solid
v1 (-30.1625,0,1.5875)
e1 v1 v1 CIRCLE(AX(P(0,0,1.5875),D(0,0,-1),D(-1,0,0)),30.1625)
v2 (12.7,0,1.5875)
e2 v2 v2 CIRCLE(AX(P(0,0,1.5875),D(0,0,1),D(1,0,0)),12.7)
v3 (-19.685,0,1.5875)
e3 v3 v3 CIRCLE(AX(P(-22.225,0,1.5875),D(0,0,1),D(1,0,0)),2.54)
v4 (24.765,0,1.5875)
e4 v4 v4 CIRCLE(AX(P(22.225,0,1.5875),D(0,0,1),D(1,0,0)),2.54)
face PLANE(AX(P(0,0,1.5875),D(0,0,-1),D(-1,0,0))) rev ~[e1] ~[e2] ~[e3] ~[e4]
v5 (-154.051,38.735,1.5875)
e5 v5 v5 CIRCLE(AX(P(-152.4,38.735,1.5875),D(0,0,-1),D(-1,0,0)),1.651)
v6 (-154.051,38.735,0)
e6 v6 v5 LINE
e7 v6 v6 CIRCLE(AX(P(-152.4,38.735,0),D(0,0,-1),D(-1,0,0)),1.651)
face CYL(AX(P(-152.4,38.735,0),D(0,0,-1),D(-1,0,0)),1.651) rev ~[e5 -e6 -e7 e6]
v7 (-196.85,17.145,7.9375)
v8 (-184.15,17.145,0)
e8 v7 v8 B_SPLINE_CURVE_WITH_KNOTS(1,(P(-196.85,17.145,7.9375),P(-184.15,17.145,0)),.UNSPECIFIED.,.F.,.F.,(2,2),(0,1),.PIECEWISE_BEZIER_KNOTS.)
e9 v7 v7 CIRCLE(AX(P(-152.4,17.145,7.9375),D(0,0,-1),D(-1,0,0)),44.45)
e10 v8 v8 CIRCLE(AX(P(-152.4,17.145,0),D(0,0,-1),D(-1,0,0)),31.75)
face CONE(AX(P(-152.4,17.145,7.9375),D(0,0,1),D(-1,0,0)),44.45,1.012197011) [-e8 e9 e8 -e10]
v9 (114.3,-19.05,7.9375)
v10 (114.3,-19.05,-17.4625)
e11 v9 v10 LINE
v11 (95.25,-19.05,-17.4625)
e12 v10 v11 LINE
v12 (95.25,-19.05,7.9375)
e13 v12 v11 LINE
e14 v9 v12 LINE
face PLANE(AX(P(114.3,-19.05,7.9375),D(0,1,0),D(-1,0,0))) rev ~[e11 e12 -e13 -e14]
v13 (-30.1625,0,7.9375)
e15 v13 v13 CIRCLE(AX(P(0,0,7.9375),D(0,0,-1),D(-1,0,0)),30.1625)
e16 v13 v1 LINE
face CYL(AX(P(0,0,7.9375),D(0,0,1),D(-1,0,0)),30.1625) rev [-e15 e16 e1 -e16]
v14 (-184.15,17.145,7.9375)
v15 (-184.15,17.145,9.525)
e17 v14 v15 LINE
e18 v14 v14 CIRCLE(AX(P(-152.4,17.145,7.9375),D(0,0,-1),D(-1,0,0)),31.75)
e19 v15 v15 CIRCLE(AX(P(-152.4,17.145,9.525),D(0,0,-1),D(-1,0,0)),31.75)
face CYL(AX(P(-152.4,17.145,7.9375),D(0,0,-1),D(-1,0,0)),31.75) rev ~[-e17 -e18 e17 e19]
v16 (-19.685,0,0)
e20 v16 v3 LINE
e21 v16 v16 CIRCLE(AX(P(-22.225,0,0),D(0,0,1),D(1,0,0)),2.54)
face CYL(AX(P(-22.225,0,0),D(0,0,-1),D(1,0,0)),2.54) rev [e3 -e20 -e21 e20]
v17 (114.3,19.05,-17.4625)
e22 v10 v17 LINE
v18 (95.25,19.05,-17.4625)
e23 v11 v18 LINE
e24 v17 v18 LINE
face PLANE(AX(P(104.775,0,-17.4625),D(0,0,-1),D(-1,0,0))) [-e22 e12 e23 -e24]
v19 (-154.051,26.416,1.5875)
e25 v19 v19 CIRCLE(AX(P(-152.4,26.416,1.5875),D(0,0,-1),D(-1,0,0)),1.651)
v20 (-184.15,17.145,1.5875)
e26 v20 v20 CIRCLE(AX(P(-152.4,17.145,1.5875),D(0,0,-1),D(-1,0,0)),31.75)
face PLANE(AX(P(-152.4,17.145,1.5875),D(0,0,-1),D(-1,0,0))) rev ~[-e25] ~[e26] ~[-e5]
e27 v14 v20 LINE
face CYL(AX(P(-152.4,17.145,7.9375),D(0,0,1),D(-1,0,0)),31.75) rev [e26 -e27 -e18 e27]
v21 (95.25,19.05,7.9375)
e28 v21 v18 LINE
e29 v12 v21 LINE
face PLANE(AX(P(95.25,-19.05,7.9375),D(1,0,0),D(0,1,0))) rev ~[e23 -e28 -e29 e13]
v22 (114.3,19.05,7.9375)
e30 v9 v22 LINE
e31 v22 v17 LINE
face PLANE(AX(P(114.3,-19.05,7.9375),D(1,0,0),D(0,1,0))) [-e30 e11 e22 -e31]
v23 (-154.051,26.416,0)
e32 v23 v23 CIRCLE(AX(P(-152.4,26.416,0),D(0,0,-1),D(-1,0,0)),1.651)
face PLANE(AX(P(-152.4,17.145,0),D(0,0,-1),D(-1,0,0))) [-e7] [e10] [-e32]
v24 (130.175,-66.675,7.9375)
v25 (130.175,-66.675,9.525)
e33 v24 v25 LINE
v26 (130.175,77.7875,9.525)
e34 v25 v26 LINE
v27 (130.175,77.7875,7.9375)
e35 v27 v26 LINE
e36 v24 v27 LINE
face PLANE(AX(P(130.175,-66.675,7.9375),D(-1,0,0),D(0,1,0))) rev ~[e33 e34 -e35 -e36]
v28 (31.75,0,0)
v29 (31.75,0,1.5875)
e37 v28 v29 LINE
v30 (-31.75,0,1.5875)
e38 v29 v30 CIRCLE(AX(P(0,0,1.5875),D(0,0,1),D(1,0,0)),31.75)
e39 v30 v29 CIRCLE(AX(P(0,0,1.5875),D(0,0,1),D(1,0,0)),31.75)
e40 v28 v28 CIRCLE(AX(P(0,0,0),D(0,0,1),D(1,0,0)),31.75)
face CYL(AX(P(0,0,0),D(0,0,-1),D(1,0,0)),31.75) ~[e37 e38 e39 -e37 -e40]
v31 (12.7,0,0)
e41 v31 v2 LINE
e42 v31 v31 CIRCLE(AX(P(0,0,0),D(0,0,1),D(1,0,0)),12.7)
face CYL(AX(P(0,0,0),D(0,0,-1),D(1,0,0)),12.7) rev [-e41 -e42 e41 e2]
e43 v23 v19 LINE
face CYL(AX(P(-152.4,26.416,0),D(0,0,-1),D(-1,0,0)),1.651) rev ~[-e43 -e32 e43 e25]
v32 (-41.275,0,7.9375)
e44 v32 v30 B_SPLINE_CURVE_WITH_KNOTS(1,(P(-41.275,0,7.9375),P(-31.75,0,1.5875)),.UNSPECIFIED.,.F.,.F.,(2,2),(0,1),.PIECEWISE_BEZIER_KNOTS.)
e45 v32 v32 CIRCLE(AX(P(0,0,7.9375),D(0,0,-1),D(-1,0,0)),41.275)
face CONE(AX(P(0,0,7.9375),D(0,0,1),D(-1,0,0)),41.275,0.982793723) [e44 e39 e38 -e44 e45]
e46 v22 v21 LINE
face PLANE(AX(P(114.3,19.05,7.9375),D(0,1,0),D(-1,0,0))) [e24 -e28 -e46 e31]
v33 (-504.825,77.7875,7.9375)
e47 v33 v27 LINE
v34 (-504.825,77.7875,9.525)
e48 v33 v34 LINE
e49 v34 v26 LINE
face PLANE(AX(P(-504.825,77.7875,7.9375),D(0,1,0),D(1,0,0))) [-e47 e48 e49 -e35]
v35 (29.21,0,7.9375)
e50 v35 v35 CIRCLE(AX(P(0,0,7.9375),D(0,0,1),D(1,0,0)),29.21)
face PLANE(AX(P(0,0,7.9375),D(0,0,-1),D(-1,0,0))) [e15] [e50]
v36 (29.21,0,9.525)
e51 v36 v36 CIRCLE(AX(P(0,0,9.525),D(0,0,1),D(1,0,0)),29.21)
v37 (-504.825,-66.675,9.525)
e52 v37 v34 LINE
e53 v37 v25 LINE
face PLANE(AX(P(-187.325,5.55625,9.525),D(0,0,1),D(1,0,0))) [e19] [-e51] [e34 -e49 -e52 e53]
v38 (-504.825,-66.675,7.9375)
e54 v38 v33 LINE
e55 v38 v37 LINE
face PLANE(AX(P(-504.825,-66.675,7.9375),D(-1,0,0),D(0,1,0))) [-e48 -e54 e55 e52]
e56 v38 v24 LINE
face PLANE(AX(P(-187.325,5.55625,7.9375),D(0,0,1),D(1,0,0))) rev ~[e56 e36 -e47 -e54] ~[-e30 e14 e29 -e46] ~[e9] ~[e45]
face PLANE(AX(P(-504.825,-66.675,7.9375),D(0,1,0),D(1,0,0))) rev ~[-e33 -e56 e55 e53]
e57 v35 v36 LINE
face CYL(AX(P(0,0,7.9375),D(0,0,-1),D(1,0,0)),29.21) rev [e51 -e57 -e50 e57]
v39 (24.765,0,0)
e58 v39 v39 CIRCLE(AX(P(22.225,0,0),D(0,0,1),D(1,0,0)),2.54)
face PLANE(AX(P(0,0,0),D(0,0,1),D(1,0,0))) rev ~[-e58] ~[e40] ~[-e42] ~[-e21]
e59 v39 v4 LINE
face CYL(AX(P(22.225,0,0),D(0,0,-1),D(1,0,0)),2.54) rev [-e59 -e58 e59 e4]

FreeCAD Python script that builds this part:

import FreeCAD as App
import Part
import Sketcher
from FreeCAD import Vector
Q = App.Units.Quantity

doc = App.newDocument("Part")
body = doc.addObject("PartDesign::Body", "Body")

# Sketch on XY plane
sketch1 = doc.addObject("Sketcher::SketchObject", "Sketch")
body.addObject(sketch1)
sketch1.AttachmentSupport = (doc.XY_Plane, [""])
sketch1.MapMode = "FlatFace"
sketch1.addGeometry([
    Part.Circle(Vector(0, 0, 0), Vector(0, 0, 1), 31.75),
    Part.Circle(Vector(-22.225, 0, 0), Vector(0, 0, 1), 2.54),
    Part.Circle(Vector(0, 0, 0), Vector(0, 0, 1), 12.7),
    Part.Circle(Vector(22.225, 0, 0), Vector(0, 0, 1), 2.54),
], False)
sketch1.addConstraint([
    Sketcher.Constraint("Coincident", 0, 3, -1, 1),
    Sketcher.Constraint("Coincident", 2, 3, -1, 1),
    Sketcher.Constraint("Equal", 1, 3),
    Sketcher.Constraint("Symmetric", 1, 3, 3, 3, -1, 1),
    Sketcher.Constraint("PointOnObject", 1, 3, -1),
    Sketcher.Constraint("Diameter", 2, Q("1 in")),
    Sketcher.Constraint("Diameter", 0, Q("2.5 in")),
    Sketcher.Constraint("Diameter", 1, Q("0.2 in")),
    Sketcher.Constraint("DistanceX", 1, 3, 3, 3, Q("1.75 in")),
])
pad1 = doc.addObject("PartDesign::Pad", "Pad")
body.addObject(pad1)
pad1.Profile = sketch1
pad1.Length = Q("0.0625 in")
body2 = doc.addObject("PartDesign::Body", "Body001")

# Sketch on XY plane
sketch2 = doc.addObject("Sketcher::SketchObject", "Sketch001")
body2.addObject(sketch2)
sketch2.AttachmentSupport = (doc.getObject("XY_Plane001"), [""])
sketch2.MapMode = "FlatFace"
sketch2.AttachmentOffset = App.Placement(Vector(0, 0, 0.3125 * 25.4), App.Rotation())
sketch2.addGeometry([
    Part.LineSegment(Vector(-504.825, 77.7875, 0), Vector(-504.825, -66.675, 0)),  # 0
    Part.LineSegment(Vector(-504.825, -66.675, 0), Vector(130.175, -66.675, 0)),  # 1
    Part.LineSegment(Vector(130.175, -66.675, 0), Vector(130.175, 77.7875, 0)),  # 2
    Part.LineSegment(Vector(130.175, 77.7875, 0), Vector(-504.825, 77.7875, 0)),  # 3
    Part.Circle(Vector(0, 0, 0), Vector(0, 0, 1), 29.21),  # 4
], False)
sketch2.addConstraint([
    Sketcher.Constraint("Coincident", 0, 2, 1, 1),
    Sketcher.Constraint("Coincident", 1, 2, 2, 1),
    Sketcher.Constraint("Coincident", 2, 2, 3, 1),
    Sketcher.Constraint("Coincident", 3, 2, 0, 1),
    Sketcher.Constraint("Vertical", 0),
    Sketcher.Constraint("Horizontal", 1),
    Sketcher.Constraint("Vertical", 2),
    Sketcher.Constraint("Horizontal", 3),
    Sketcher.Constraint("Coincident", 4, 3, -1, 1),
    Sketcher.Constraint("Diameter", 4, Q("2.3 in")),
    Sketcher.Constraint("DistanceX", 1, 1, 1, 2, Q("25 in")),
    Sketcher.Constraint("DistanceY", 0, 2, 0, 1, Q("5.6875 in")),
    Sketcher.Constraint("DistanceX", 0, 2, -1, 1, Q("19.875 in")),
    Sketcher.Constraint("DistanceY", 0, 2, -1, 1, Q("2.625 in")),
])
pad2 = doc.addObject("PartDesign::Pad", "Pad001")
body2.addObject(pad2)
pad2.Profile = sketch2
pad2.Length = Q("0.0625 in")
body.AllowCompound = True
doc.recompute()

boolean = doc.addObject("PartDesign::Boolean", "Boolean")
body.addObject(boolean)
boolean.Type = "Fuse"
boolean.addObjects([body2])

# Sketch on XY plane
sketch3 = doc.addObject("Sketcher::SketchObject", "Sketch002")
body.addObject(sketch3)
sketch3.AttachmentSupport = (doc.XY_Plane, [""])
sketch3.MapMode = "FlatFace"
sketch3.AttachmentOffset = App.Placement(Vector(0, 0, 0.3125 * 25.4), App.Rotation())
sketch3.addGeometry(Part.Circle(Vector(0, 0, 0), Vector(0, 0, 1), 41.275), False)
sketch3.addConstraint([
    Sketcher.Constraint("Coincident", 0, 3, -1, 1),
    Sketcher.Constraint("Diameter", 0, Q("3.25 in")),
])

# Sketch on XY plane
sketch4 = doc.addObject("Sketcher::SketchObject", "Sketch003")
body.addObject(sketch4)
sketch4.AttachmentSupport = (doc.XY_Plane, [""])
sketch4.MapMode = "FlatFace"
sketch4.AttachmentOffset = App.Placement(Vector(0, 0, 0.0625 * 25.4), App.Rotation())
sketch4.addGeometry(Part.Circle(Vector(0, 0, 0), Vector(0, 0, 1), 31.75), False)
sketch4.addConstraint([
    Sketcher.Constraint("Coincident", 0, 3, -1, 1),
    Sketcher.Constraint("Diameter", 0, Q("2.5 in")),
])

additiveloft = doc.addObject("PartDesign::AdditiveLoft", "AdditiveLoft")
body.addObject(additiveloft)
additiveloft.Profile = sketch3
additiveloft.Sections = [sketch4]

# Sketch on XY plane
sketch5 = doc.addObject("Sketcher::SketchObject", "Sketch004")
body.addObject(sketch5)
sketch5.AttachmentSupport = (doc.XY_Plane, [""])
sketch5.MapMode = "FlatFace"
sketch5.AttachmentOffset = App.Placement(Vector(0, 0, 0.3125 * 25.4), App.Rotation())
sketch5.addGeometry(Part.Circle(Vector(0, 0, 0), Vector(0, 0, 1), 30.1625), False)
sketch5.addConstraint([
    Sketcher.Constraint("Coincident", 0, 3, -1, 1),
    Sketcher.Constraint("Diameter", 0, Q("2.375 in")),
])
pocket1 = doc.addObject("PartDesign::Pocket", "Pocket")
body.addObject(pocket1)
pocket1.Profile = sketch5
pocket1.Length = Q("0.25 in")

# Sketch on XY plane
sketch6 = doc.addObject("Sketcher::SketchObject", "Sketch005")
body.addObject(sketch6)
sketch6.AttachmentSupport = (doc.XY_Plane, [""])
sketch6.MapMode = "FlatFace"
sketch6.AttachmentOffset = App.Placement(Vector(0, 0, 0.3125 * 25.4), App.Rotation())
sketch6.addGeometry([
    Part.LineSegment(Vector(114.3, 19.05, 0), Vector(114.3, -19.05, 0)),
    Part.LineSegment(Vector(114.3, -19.05, 0), Vector(95.25, -19.05, 0)),
    Part.LineSegment(Vector(95.25, -19.05, 0), Vector(95.25, 19.05, 0)),
    Part.LineSegment(Vector(95.25, 19.05, 0), Vector(114.3, 19.05, 0)),
], False)
sketch6.addConstraint([
    Sketcher.Constraint("Coincident", 0, 2, 1, 1),
    Sketcher.Constraint("Coincident", 1, 2, 2, 1),
    Sketcher.Constraint("Coincident", 2, 2, 3, 1),
    Sketcher.Constraint("Coincident", 3, 2, 0, 1),
    Sketcher.Constraint("Vertical", 0),
    Sketcher.Constraint("Horizontal", 1),
    Sketcher.Constraint("Vertical", 2),
    Sketcher.Constraint("Horizontal", 3),
    Sketcher.Constraint("DistanceY", 0, 2, 0, 1, Q("1.5 in")),
    Sketcher.Constraint("DistanceX", 1, 2, 1, 1, Q("0.75 in")),
    Sketcher.Constraint("DistanceX", -1, 1, 0, 2, Q("4.5 in")),
    Sketcher.Constraint("DistanceY", 0, 2, -1, 1, Q("0.75 in")),
])
pad3 = doc.addObject("PartDesign::Pad", "Pad002")
body.addObject(pad3)
pad3.Profile = sketch6
pad3.Length = Q("1 in")
pad3.Reversed = True

# Sketch on XY plane
sketch7 = doc.addObject("Sketcher::SketchObject", "Sketch006")
body.addObject(sketch7)
sketch7.AttachmentSupport = (doc.XY_Plane, [""])
sketch7.MapMode = "FlatFace"
sketch7.AttachmentOffset = App.Placement(Vector(0, 0, 0.3125 * 25.4), App.Rotation())
sketch7.addGeometry(Part.Circle(Vector(-152.4, 17.145, 0), Vector(0, 0, 1), 44.45), False)
sketch7.addConstraint([
    Sketcher.Constraint("Diameter", 0, Q("3.5 in")),
    Sketcher.Constraint("DistanceX", 0, 3, -1, 1, Q("6 in")),
    Sketcher.Constraint("DistanceY", -1, 1, 0, 3, Q("0.675 in")),
])

# Sketch on XY plane
sketch8 = doc.addObject("Sketcher::SketchObject", "Sketch007")
body.addObject(sketch8)
sketch8.AttachmentSupport = (doc.XY_Plane, [""])
sketch8.MapMode = "FlatFace"
sketch8.addGeometry(Part.Circle(Vector(-152.4, 17.145, 0), Vector(0, 0, 1), 31.75), False)
sketch8.addConstraint([
    Sketcher.Constraint("Diameter", 0, Q("2.5 in")),
    Sketcher.Constraint("DistanceX", 0, 3, -1, 1, Q("6 in")),
    Sketcher.Constraint("DistanceY", -1, 1, 0, 3, Q("0.675 in")),
])

additiveloft2 = doc.addObject("PartDesign::AdditiveLoft", "AdditiveLoft001")
body.addObject(additiveloft2)
additiveloft2.Profile = sketch7
additiveloft2.Sections = [sketch8]

# Sketch on XY plane
sketch9 = doc.addObject("Sketcher::SketchObject", "Sketch008")
body.addObject(sketch9)
sketch9.AttachmentSupport = (doc.XY_Plane, [""])
sketch9.MapMode = "FlatFace"
sketch9.AttachmentOffset = App.Placement(Vector(0, 0, 0.3125 * 25.4), App.Rotation())
sketch9.addGeometry(Part.Circle(Vector(-152.4, 17.145, 0), Vector(0, 0, 1), 31.75), False)
sketch9.addConstraint([
    Sketcher.Constraint("Diameter", 0, Q("2.5 in")),
    Sketcher.Constraint("DistanceX", 0, 3, -1, 1, Q("6 in")),
    Sketcher.Constraint("DistanceY", -1, 1, 0, 3, Q("0.675 in")),
])
pocket2 = doc.addObject("PartDesign::Pocket", "Pocket001")
body.addObject(pocket2)
pocket2.Profile = sketch9
pocket2.Type = "TwoLengths"
pocket2.Length = Q("0.25 in")
pocket2.Length2 = 2.5875

# Sketch on XY plane
sketch10 = doc.addObject("Sketcher::SketchObject", "Sketch009")
body.addObject(sketch10)
sketch10.AttachmentSupport = (doc.XY_Plane, [""])
sketch10.MapMode = "FlatFace"
sketch10.addGeometry([
    Part.Circle(Vector(-152.4, 26.416, 0), Vector(0, 0, 1), 1.651),
    Part.Circle(Vector(-152.4, 38.735, 0), Vector(0, 0, 1), 1.651),
], False)
sketch10.addConstraint([
    Sketcher.Constraint("Equal", 0, 1),
    Sketcher.Constraint("Vertical", 0, 3, 1, 3),
    Sketcher.Constraint("Diameter", 0, Q("0.13 in")),
    Sketcher.Constraint("DistanceX", 0, 3, -1, 1, Q("6 in")),
    Sketcher.Constraint("DistanceY", -1, 1, 0, 3, Q("1.04 in")),
    Sketcher.Constraint("DistanceY", -1, 1, 1, 3, Q("1.525 in")),
])
pocket3 = doc.addObject("PartDesign::Pocket", "Pocket002")
body.addObject(pocket3)
pocket3.Profile = sketch10
pocket3.Type = "ThroughAll"
pocket3.Reversed = True

doc.recompute()
